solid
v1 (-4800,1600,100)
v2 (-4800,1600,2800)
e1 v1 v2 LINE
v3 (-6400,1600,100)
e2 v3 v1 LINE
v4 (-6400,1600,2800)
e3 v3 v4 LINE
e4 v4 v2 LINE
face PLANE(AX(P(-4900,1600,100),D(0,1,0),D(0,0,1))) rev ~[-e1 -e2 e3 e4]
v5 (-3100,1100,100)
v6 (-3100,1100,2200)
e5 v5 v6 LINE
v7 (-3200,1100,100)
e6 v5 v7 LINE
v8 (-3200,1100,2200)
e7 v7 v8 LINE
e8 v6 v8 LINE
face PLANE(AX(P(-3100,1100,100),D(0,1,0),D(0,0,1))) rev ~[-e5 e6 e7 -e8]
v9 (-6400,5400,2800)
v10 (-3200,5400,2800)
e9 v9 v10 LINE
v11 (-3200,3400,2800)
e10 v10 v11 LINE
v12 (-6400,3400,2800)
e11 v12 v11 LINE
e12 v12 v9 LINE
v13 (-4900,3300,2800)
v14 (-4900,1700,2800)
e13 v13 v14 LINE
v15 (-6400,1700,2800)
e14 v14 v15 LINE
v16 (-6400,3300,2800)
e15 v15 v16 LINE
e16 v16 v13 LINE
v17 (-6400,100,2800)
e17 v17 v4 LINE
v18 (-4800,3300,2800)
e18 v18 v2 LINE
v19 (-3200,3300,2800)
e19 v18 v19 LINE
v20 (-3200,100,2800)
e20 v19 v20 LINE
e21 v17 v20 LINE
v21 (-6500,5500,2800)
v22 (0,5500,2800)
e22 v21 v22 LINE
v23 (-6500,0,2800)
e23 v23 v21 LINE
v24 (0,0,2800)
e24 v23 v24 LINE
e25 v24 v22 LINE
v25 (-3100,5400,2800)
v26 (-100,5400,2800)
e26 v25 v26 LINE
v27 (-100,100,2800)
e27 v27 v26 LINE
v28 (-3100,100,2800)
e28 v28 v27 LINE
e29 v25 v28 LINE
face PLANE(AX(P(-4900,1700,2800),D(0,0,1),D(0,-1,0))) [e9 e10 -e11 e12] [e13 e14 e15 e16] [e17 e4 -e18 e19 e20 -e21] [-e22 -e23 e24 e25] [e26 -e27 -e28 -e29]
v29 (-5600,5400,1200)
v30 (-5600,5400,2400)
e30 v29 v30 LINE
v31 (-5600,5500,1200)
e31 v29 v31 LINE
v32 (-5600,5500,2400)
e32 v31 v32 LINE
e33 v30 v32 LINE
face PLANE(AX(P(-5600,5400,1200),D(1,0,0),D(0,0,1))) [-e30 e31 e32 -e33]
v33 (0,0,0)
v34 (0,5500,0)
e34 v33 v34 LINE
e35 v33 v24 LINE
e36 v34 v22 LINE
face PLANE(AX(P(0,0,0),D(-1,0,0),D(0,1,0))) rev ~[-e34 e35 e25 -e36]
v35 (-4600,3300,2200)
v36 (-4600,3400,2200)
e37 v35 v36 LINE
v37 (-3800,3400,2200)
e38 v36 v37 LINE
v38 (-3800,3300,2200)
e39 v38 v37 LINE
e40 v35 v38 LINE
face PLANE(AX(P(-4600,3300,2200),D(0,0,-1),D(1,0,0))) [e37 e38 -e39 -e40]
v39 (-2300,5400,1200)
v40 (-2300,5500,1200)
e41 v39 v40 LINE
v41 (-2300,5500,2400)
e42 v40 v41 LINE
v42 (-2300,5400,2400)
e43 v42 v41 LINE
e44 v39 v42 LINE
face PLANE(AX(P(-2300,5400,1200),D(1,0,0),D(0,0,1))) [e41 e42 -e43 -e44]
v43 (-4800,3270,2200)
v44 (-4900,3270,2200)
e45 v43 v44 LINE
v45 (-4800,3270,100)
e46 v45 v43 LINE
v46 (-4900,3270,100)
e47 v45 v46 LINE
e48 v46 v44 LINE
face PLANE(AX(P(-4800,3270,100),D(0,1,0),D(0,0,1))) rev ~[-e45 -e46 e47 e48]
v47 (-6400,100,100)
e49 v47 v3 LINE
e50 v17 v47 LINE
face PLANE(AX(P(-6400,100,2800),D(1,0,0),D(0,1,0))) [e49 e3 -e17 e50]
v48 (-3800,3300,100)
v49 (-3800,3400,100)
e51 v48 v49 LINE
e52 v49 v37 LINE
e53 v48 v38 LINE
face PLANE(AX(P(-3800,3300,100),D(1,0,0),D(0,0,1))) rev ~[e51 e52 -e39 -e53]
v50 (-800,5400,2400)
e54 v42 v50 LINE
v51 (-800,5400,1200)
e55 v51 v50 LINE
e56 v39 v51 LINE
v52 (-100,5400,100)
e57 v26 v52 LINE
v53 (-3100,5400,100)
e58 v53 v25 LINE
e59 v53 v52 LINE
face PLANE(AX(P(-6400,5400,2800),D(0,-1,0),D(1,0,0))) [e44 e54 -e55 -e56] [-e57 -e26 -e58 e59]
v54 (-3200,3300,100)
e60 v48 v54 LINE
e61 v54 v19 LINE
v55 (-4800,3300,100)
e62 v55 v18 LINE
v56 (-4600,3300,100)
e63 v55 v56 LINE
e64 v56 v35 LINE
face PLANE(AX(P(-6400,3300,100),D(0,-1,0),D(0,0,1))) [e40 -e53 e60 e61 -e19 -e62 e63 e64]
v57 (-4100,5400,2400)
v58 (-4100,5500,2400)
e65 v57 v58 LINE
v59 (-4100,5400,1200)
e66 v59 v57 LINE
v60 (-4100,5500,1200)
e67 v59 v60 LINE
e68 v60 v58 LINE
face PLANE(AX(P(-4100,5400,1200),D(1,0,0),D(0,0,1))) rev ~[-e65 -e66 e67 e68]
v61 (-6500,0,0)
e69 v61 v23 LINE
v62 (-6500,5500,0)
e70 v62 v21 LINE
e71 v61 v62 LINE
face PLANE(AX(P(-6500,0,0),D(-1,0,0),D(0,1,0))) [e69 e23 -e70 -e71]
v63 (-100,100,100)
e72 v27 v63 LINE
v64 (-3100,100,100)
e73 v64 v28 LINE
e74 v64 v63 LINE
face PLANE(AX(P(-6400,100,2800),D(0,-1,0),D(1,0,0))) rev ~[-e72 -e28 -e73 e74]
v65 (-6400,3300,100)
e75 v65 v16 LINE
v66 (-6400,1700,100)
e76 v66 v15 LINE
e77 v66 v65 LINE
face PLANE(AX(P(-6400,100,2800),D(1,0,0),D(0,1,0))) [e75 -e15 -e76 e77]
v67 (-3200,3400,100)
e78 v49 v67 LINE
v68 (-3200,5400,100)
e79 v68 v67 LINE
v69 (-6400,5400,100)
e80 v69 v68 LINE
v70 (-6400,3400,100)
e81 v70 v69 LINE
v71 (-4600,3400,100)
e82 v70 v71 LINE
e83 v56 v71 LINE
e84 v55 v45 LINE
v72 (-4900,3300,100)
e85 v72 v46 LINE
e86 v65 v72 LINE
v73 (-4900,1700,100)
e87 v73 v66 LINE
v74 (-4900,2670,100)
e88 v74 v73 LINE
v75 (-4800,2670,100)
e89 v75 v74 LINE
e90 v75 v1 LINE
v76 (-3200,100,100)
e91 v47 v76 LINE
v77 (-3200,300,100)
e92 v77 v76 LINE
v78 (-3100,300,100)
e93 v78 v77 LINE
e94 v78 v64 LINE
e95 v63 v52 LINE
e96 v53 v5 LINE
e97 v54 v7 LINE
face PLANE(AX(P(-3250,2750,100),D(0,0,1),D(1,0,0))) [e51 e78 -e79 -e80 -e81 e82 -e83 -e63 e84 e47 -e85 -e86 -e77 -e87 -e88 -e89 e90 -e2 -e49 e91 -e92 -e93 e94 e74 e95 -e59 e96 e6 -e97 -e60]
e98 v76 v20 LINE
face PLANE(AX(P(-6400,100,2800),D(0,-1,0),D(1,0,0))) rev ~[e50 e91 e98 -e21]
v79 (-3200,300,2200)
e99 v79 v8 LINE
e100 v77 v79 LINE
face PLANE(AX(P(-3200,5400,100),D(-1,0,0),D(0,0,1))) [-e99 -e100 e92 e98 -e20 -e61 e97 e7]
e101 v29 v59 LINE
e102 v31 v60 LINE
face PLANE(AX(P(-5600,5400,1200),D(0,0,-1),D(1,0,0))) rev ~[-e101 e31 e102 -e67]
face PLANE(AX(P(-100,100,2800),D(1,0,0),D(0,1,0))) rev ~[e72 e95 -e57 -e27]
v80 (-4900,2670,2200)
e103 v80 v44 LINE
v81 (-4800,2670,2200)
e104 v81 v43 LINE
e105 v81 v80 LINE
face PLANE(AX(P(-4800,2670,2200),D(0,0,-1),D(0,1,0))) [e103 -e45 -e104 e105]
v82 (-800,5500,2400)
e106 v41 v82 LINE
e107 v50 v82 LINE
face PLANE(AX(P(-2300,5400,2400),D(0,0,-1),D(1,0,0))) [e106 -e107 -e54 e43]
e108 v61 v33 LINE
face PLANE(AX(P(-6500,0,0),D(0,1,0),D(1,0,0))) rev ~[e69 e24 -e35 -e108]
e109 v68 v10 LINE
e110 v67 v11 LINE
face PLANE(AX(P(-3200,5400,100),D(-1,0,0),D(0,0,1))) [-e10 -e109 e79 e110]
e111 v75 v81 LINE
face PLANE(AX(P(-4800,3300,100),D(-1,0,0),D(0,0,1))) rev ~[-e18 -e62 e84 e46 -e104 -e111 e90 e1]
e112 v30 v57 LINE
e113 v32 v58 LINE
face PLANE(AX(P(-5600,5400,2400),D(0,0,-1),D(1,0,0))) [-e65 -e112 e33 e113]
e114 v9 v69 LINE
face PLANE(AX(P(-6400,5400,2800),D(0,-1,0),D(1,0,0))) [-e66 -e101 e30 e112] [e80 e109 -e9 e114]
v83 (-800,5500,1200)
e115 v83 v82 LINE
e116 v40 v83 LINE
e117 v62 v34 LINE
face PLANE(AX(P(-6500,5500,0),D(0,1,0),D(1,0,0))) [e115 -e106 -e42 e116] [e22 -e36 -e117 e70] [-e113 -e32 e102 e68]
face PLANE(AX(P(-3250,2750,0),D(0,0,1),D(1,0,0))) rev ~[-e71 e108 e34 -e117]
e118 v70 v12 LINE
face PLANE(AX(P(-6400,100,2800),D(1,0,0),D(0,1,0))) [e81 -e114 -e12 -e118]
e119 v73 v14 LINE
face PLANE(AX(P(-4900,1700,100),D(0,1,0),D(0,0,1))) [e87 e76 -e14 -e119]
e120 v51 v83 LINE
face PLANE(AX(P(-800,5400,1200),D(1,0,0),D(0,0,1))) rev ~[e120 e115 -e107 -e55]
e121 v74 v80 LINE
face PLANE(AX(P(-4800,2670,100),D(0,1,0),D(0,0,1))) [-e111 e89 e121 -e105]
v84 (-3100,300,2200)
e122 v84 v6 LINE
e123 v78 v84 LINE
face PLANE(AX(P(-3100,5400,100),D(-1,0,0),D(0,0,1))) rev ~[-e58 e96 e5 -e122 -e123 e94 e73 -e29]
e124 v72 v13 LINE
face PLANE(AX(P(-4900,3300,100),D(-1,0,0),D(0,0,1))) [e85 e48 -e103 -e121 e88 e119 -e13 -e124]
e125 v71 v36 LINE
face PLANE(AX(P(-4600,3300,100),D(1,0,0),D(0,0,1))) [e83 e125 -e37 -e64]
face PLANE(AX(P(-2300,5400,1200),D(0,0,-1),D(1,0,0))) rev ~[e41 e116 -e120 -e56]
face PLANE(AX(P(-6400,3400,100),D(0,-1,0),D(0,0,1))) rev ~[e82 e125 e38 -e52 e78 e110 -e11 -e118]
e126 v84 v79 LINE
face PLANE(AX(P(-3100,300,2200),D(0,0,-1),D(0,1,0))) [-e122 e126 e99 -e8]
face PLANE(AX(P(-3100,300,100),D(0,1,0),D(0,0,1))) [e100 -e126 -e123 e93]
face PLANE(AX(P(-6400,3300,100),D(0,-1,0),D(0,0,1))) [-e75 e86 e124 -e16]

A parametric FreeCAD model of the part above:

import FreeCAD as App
import Part
import Sketcher

V = App.Vector


def add_polygon(sketch, points):
    """Adds a closed chain of lines whose ends are joined by coincident constraints."""
    first, n = sketch.GeometryCount, len(points)
    for a, b in zip(points, points[1:] + points[:1]):
        sketch.addGeometry(Part.LineSegment(App.Vector(*a, 0), App.Vector(*b, 0)), False)
    for i in range(n):
        sketch.addConstraint(Sketcher.Constraint("Coincident", first + i, 2, first + (i + 1) % n, 1))

doc = App.newDocument("Part")
body = doc.addObject("PartDesign::Body", "Body")

# Sketch on XY plane
sketch1 = body.newObject("Sketcher::SketchObject", "Sketch")
sketch1.AttachmentSupport = (doc.getObject("XY_Plane"), [""])
sketch1.MapMode = "FlatFace"
add_polygon(sketch1, [(-6500, 5500), (-6500, 0), (0, 0), (0, 5500)])  # lines 0-3
sketch1.addConstraint(Sketcher.Constraint("Vertical", 0))
sketch1.addConstraint(Sketcher.Constraint("Horizontal", 1))
sketch1.addConstraint(Sketcher.Constraint("Vertical", 2))
sketch1.addConstraint(Sketcher.Constraint("Horizontal", 3))
sketch1.addConstraint(Sketcher.Constraint("Coincident", 1, 2, -1, 1))
sketch1.addConstraint(Sketcher.Constraint("DistanceX", 1, 1, 1, 2, 6500.0))
sketch1.addConstraint(Sketcher.Constraint("DistanceY", 0, 2, 0, 1, 5500.0))
pad1 = body.newObject("PartDesign::Pad", "Pad")
pad1.Profile = sketch1
pad1.Length = 2800

# Sketch on XY plane
sketch2 = body.newObject("Sketcher::SketchObject", "Sketch001")
sketch2.AttachmentSupport = (doc.getObject("XY_Plane"), [""])
sketch2.MapMode = "FlatFace"
sketch2.AttachmentOffset = App.Placement(V(0, 0, 2800), App.Rotation())
add_polygon(sketch2, [(-6400, 5400), (-6400, 100), (-100, 100), (-100, 5400)])  # lines 0-3
sketch2.addConstraint(Sketcher.Constraint("Vertical", 0))
sketch2.addConstraint(Sketcher.Constraint("Horizontal", 1))
sketch2.addConstraint(Sketcher.Constraint("Vertical", 2))
sketch2.addConstraint(Sketcher.Constraint("Horizontal", 3))
sketch2.addConstraint(Sketcher.Constraint("DistanceX", 1, 1, 1, 2, 6300.0))
sketch2.addConstraint(Sketcher.Constraint("DistanceY", 0, 2, 0, 1, 5300.0))
sketch2.addConstraint(Sketcher.Constraint("DistanceX", 0, 2, -1, 1, 6400.0))
sketch2.addConstraint(Sketcher.Constraint("DistanceY", -1, 1, 0, 2, 100.0))
pocket1 = body.newObject("PartDesign::Pocket", "Pocket")
pocket1.Profile = sketch2
pocket1.Length = 2700

# Sketch on XZ plane
sketch3 = body.newObject("Sketcher::SketchObject", "Sketch002")
sketch3.AttachmentSupport = (doc.getObject("XZ_Plane"), [""])
sketch3.MapMode = "FlatFace"
sketch3.AttachmentOffset = App.Placement(V(0, 0, -5400), App.Rotation())
add_polygon(sketch3, [(-3200, 2800), (-3200, 100), (-3100, 100), (-3100, 2800)])  # lines 0-3
sketch3.addConstraint(Sketcher.Constraint("Vertical", 0))
sketch3.addConstraint(Sketcher.Constraint("Horizontal", 1))
sketch3.addConstraint(Sketcher.Constraint("Vertical", 2))
sketch3.addConstraint(Sketcher.Constraint("Horizontal", 3))
sketch3.addConstraint(Sketcher.Constraint("DistanceX", 1, 1, 1, 2, 100.0))
sketch3.addConstraint(Sketcher.Constraint("DistanceY", 0, 2, 0, 1, 2700.0))
sketch3.addConstraint(Sketcher.Constraint("DistanceX", 0, 2, -1, 1, 3200.0))
sketch3.addConstraint(Sketcher.Constraint("DistanceY", -1, 1, 0, 2, 100.0))
pad2 = body.newObject("PartDesign::Pad", "Pad001")
pad2.Profile = sketch3
pad2.Type = "UpToLast"

# Sketch on YZ plane
sketch4 = body.newObject("Sketcher::SketchObject", "Sketch003")
sketch4.AttachmentSupport = (doc.getObject("YZ_Plane"), [""])
sketch4.MapMode = "FlatFace"
sketch4.AttachmentOffset = App.Placement(V(0, 0, -3100), App.Rotation())
add_polygon(sketch4, [(300, 2200), (300, 100), (1100, 100), (1100, 2200)])  # lines 0-3
sketch4.addConstraint(Sketcher.Constraint("Vertical", 0))
sketch4.addConstraint(Sketcher.Constraint("Horizontal", 1))
sketch4.addConstraint(Sketcher.Constraint("Vertical", 2))
sketch4.addConstraint(Sketcher.Constraint("Horizontal", 3))
sketch4.addConstraint(Sketcher.Constraint("DistanceX", 1, 1, 1, 2, 800.0))
sketch4.addConstraint(Sketcher.Constraint("DistanceY", 0, 2, 0, 1, 2100.0))
sketch4.addConstraint(Sketcher.Constraint("DistanceX", -1, 1, 0, 2, 300.0))
sketch4.addConstraint(Sketcher.Constraint("DistanceY", -1, 1, 0, 2, 100.0))
pocket2 = body.newObject("PartDesign::Pocket", "Pocket001")
pocket2.Profile = sketch4
pocket2.Length = 100

# Sketch on YZ plane
sketch5 = body.newObject("Sketcher::SketchObject", "Sketch004")
sketch5.AttachmentSupport = (doc.getObject("YZ_Plane"), [""])
sketch5.MapMode = "FlatFace"
sketch5.AttachmentOffset = App.Placement(V(0, 0, -6400), App.Rotation())
add_polygon(sketch5, [(3300, 2800), (3300, 100), (3400, 100), (3400, 2800)])  # lines 0-3
sketch5.addConstraint(Sketcher.Constraint("Vertical", 0))
sketch5.addConstraint(Sketcher.Constraint("Horizontal", 1))
sketch5.addConstraint(Sketcher.Constraint("Vertical", 2))
sketch5.addConstraint(Sketcher.Constraint("Horizontal", 3))
sketch5.addConstraint(Sketcher.Constraint("DistanceX", 1, 1, 1, 2, 100.0))
sketch5.addConstraint(Sketcher.Constraint("DistanceY", 0, 2, 0, 1, 2700.0))
sketch5.addConstraint(Sketcher.Constraint("DistanceX", -1, 1, 0, 2, 3300.0))
sketch5.addConstraint(Sketcher.Constraint("DistanceY", -1, 1, 0, 2, 100.0))
pad3 = body.newObject("PartDesign::Pad", "Pad002")
pad3.Profile = sketch5
pad3.Length = 3200

# Sketch on XZ plane
sketch6 = body.newObject("Sketcher::SketchObject", "Sketch005")
sketch6.AttachmentSupport = (doc.getObject("XZ_Plane"), [""])
sketch6.MapMode = "FlatFace"
sketch6.AttachmentOffset = App.Placement(V(0, 0, -3300), App.Rotation())
add_polygon(sketch6, [(-4600, 2200), (-4600, 100), (-3800, 100), (-3800, 2200)])  # lines 0-3
sketch6.addConstraint(Sketcher.Constraint("Vertical", 0))
sketch6.addConstraint(Sketcher.Constraint("Horizontal", 1))
sketch6.addConstraint(Sketcher.Constraint("Vertical", 2))
sketch6.addConstraint(Sketcher.Constraint("Horizontal", 3))
sketch6.addConstraint(Sketcher.Constraint("DistanceX", 1, 1, 1, 2, 800.0))
sketch6.addConstraint(Sketcher.Constraint("DistanceY", 0, 2, 0, 1, 2100.0))
sketch6.addConstraint(Sketcher.Constraint("DistanceX", 0, 2, -1, 1, 4600.0))
sketch6.addConstraint(Sketcher.Constraint("DistanceY", -1, 1, 0, 2, 100.0))
pocket3 = body.newObject("PartDesign::Pocket", "Pocket002")
pocket3.Profile = sketch6
pocket3.Length = 100

# Sketch on XZ plane
sketch7 = body.newObject("Sketcher::SketchObject", "Sketch006")
sketch7.AttachmentSupport = (doc.getObject("XZ_Plane"), [""])
sketch7.MapMode = "FlatFace"
sketch7.AttachmentOffset = App.Placement(V(0, 0, -3300), App.Rotation())
add_polygon(sketch7, [(-4900, 2800), (-4900, 100), (-4800, 100), (-4800, 2800)])  # lines 0-3
sketch7.addConstraint(Sketcher.Constraint("Vertical", 0))
sketch7.addConstraint(Sketcher.Constraint("Horizontal", 1))
sketch7.addConstraint(Sketcher.Constraint("Vertical", 2))
sketch7.addConstraint(Sketcher.Constraint("Horizontal", 3))
sketch7.addConstraint(Sketcher.Constraint("DistanceX", 1, 1, 1, 2, 100.0))
sketch7.addConstraint(Sketcher.Constraint("DistanceY", 0, 2, 0, 1, 2700.0))
sketch7.addConstraint(Sketcher.Constraint("DistanceX", 0, 2, -1, 1, 4900.0))
sketch7.addConstraint(Sketcher.Constraint("DistanceY", -1, 1, 0, 2, 100.0))
pad4 = body.newObject("PartDesign::Pad", "Pad003")
pad4.Profile = sketch7
pad4.Length = 1700

# Sketch on YZ plane
sketch8 = body.newObject("Sketcher::SketchObject", "Sketch007")
sketch8.AttachmentSupport = (doc.getObject("YZ_Plane"), [""])
sketch8.MapMode = "FlatFace"
sketch8.AttachmentOffset = App.Placement(V(0, 0, -4900), App.Rotation())
add_polygon(sketch8, [(1700, 2800), (1700, 100), (1600, 100), (1600, 2800)])  # lines 0-3
sketch8.addConstraint(Sketcher.Constraint("Vertical", 0))
sketch8.addConstraint(Sketcher.Constraint("Horizontal", 1))
sketch8.addConstraint(Sketcher.Constraint("Vertical", 2))
sketch8.addConstraint(Sketcher.Constraint("Horizontal", 3))
sketch8.addConstraint(Sketcher.Constraint("DistanceX", 1, 2, 1, 1, 100.0))
sketch8.addConstraint(Sketcher.Constraint("DistanceY", 0, 2, 0, 1, 2700.0))
sketch8.addConstraint(Sketcher.Constraint("DistanceX", -1, 1, 0, 2, 1700.0))
sketch8.addConstraint(Sketcher.Constraint("DistanceY", -1, 1, 0, 2, 100.0))
pad5 = body.newObject("PartDesign::Pad", "Pad004")
pad5.Profile = sketch8
pad5.Type = "UpToLast"
pad5.Reversed = True

# Sketch on XZ plane
sketch9 = body.newObject("Sketcher::SketchObject", "Sketch008")
sketch9.AttachmentSupport = (doc.getObject("XZ_Plane"), [""])
sketch9.MapMode = "FlatFace"
sketch9.AttachmentOffset = App.Placement(V(0, 0, -5400), App.Rotation())
add_polygon(sketch9, [(-2300, 2400), (-2300, 1200), (-800, 1200), (-800, 2400)])  # lines 0-3
sketch9.addConstraint(Sketcher.Constraint("Vertical", 0))
sketch9.addConstraint(Sketcher.Constraint("Horizontal", 1))
sketch9.addConstraint(Sketcher.Constraint("Vertical", 2))
sketch9.addConstraint(Sketcher.Constraint("Horizontal", 3))
sketch9.addConstraint(Sketcher.Constraint("DistanceX", 1, 1, 1, 2, 1500.0))
sketch9.addConstraint(Sketcher.Constraint("DistanceY", 0, 2, 0, 1, 1200.0))
sketch9.addConstraint(Sketcher.Constraint("DistanceX", 0, 2, -1, 1, 2300.0))
sketch9.addConstraint(Sketcher.Constraint("DistanceY", -1, 1, 0, 2, 1200.0))
pocket4 = body.newObject("PartDesign::Pocket", "Pocket003")
pocket4.Profile = sketch9
pocket4.Type = "ThroughAll"

# Sketch on XZ plane
sketch10 = body.newObject("Sketcher::SketchObject", "Sketch009")
sketch10.AttachmentSupport = (doc.getObject("XZ_Plane"), [""])
sketch10.MapMode = "FlatFace"
sketch10.AttachmentOffset = App.Placement(V(0, 0, -5400), App.Rotation())
add_polygon(sketch10, [(-5600, 2400), (-5600, 1200), (-4100, 1200), (-4100, 2400)])  # lines 0-3
sketch10.addConstraint(Sketcher.Constraint("Vertical", 0))
sketch10.addConstraint(Sketcher.Constraint("Horizontal", 1))
sketch10.addConstraint(Sketcher.Constraint("Vertical", 2))
sketch10.addConstraint(Sketcher.Constraint("Horizontal", 3))
sketch10.addConstraint(Sketcher.Constraint("DistanceX", 1, 1, 1, 2, 1500.0))
sketch10.addConstraint(Sketcher.Constraint("DistanceY", 0, 2, 0, 1, 1200.0))
sketch10.addConstraint(Sketcher.Constraint("DistanceX", 0, 2, -1, 1, 5600.0))
sketch10.addConstraint(Sketcher.Constraint("DistanceY", -1, 1, 0, 2, 1200.0))
pocket5 = body.newObject("PartDesign::Pocket", "Pocket004")
pocket5.Profile = sketch10
pocket5.Type = "ThroughAll"

# Sketch on YZ plane
sketch11 = body.newObject("Sketcher::SketchObject", "Sketch010")
sketch11.AttachmentSupport = (doc.getObject("YZ_Plane"), [""])
sketch11.MapMode = "FlatFace"
sketch11.AttachmentOffset = App.Placement(V(0, 0, -4800), App.Rotation())
add_polygon(sketch11, [(2670, 2200), (2670, 100), (3270, 100), (3270, 2200)])  # lines 0-3
sketch11.addConstraint(Sketcher.Constraint("Vertical", 0))
sketch11.addConstraint(Sketcher.Constraint("Horizontal", 1))
sketch11.addConstraint(Sketcher.Constraint("Vertical", 2))
sketch11.addConstraint(Sketcher.Constraint("Horizontal", 3))
sketch11.addConstraint(Sketcher.Constraint("DistanceX", 1, 1, 1, 2, 600.0))
sketch11.addConstraint(Sketcher.Constraint("DistanceY", 0, 2, 0, 1, 2100.0))
sketch11.addConstraint(Sketcher.Constraint("DistanceX", -1, 1, 0, 2, 2670.0))
sketch11.addConstraint(Sketcher.Constraint("DistanceY", -1, 1, 0, 2, 100.0))
pocket6 = body.newObject("PartDesign::Pocket", "Pocket005")
pocket6.Profile = sketch11
pocket6.Length = 100

doc.recompute()
